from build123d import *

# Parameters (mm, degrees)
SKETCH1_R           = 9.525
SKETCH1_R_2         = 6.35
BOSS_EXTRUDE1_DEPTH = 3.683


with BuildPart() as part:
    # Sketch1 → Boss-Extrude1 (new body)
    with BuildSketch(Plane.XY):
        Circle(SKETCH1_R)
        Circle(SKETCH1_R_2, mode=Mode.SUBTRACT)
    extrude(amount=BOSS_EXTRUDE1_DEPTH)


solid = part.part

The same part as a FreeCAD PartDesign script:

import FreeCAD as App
import Part
import Sketcher

V = App.Vector
Q = App.Units.Quantity

doc = App.newDocument("Part")
body = doc.addObject("PartDesign::Body", "Body")

# Sketch on XY plane
sketch1 = body.newObject("Sketcher::SketchObject", "Sketch")
sketch1.AttachmentSupport = (doc.getObject("XY_Plane"), [""])
sketch1.MapMode = "FlatFace"
sketch1.addGeometry(Part.Circle(V(0, 0, 0), V(0, 0, 1), 10), False)
sketch1.addGeometry(Part.Circle(V(0, 0, 0), V(0, 0, 1), 6), False)
sketch1.addConstraint(Sketcher.Constraint("Coincident", 0, 3, -1, 1))
sketch1.addConstraint(Sketcher.Constraint("Coincident", 1, 3, -1, 1))
sketch1.addConstraint(Sketcher.Constraint("Diameter", 1, Q("0.5 in")))
sketch1.addConstraint(Sketcher.Constraint("Diameter", 0, Q("0.75 in")))
pad1 = body.newObject("PartDesign::Pad", "Pad")
pad1.Profile = sketch1
pad1.Length = Q("0.145 in")

doc.recompute()
